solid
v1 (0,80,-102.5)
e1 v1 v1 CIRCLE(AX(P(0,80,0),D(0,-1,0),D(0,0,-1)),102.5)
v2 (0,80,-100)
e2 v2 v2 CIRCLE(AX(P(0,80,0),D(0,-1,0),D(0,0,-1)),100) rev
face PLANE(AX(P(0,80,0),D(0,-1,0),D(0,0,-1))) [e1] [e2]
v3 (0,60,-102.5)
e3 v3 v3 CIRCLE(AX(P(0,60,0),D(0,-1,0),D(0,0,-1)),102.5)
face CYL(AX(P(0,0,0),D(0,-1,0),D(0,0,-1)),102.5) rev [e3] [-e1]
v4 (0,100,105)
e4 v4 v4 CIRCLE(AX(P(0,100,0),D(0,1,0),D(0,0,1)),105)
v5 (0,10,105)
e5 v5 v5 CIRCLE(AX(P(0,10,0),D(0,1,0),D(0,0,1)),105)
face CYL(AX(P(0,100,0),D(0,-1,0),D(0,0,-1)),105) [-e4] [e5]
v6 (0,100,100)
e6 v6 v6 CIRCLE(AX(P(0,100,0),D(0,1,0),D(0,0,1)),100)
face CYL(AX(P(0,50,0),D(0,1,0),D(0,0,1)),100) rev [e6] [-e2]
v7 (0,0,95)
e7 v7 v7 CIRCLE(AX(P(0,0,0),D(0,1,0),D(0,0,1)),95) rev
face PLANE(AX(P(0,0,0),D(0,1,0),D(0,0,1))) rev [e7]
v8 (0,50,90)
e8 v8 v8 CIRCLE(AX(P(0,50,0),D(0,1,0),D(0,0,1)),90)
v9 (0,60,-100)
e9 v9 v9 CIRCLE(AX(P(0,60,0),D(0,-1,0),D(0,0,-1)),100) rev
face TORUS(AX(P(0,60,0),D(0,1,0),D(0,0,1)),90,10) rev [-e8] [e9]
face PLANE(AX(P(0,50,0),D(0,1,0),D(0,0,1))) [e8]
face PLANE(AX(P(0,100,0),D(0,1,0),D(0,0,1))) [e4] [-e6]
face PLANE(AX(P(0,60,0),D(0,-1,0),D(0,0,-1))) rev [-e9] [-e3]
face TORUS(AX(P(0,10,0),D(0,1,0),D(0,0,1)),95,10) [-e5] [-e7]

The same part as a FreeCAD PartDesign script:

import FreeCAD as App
import Part
import Sketcher
Q = App.Units.Quantity


def edges_at(feature, points):
    """Names of the edges that pass closest to the given points."""
    edges = feature.Shape.Edges
    near = lambda p: min(range(len(edges)), key=lambda i: edges[i].distToShape(Part.Vertex(*p))[0])
    return sorted({f"Edge{near(p) + 1}" for p in points})

doc = App.newDocument("Part")
body = doc.addObject("PartDesign::Body", "Body")

sketch1 = body.newObject("Sketcher::SketchObject", "Sketch")
sketch1.AttachmentSupport = (doc.getObject("XZ_Plane"), [""])
sketch1.MapMode = "FlatFace"
sketch1.addGeometry(Part.Circle(App.Vector(0, 0, 0), App.Vector(0, 0, 1), 105), False)
sketch1.addConstraint(Sketcher.Constraint("Coincident", 0, 3, -1, 1))
sketch1.addConstraint(Sketcher.Constraint("Diameter", 0, Q("210 mm")))
pad1 = body.newObject("PartDesign::Pad", "Pad")
pad1.Profile = sketch1
pad1.Length = 100
pad1.Reversed = True

sketch2 = body.newObject("Sketcher::SketchObject", "Sketch001")
sketch2.AttachmentSupport = (doc.getObject("XZ_Plane"), [""])
sketch2.MapMode = "FlatFace"
sketch2.AttachmentOffset = App.Placement(App.Vector(0, 0, -100), App.Rotation())
sketch2.addGeometry(Part.Circle(App.Vector(0, 0, 0), App.Vector(0, 0, 1), 100), False)
sketch2.addConstraint(Sketcher.Constraint("Coincident", 0, 3, -1, 1))
sketch2.addConstraint(Sketcher.Constraint("Diameter", 0, Q("200 mm")))
pocket1 = body.newObject("PartDesign::Pocket", "Pocket")
pocket1.Profile = sketch2
pocket1.Length = 50
pocket1.Reversed = True
doc.recompute()

fillet = body.newObject("PartDesign::Fillet", "Fillet")
fillet.Base = (pocket1, edges_at(pocket1, [(0, 50, -100)]))
fillet.Radius = 10
doc.recompute()

fillet2 = body.newObject("PartDesign::Fillet", "Fillet001")
fillet2.Base = (fillet, edges_at(fillet, [(0, 0, -105)]))
fillet2.Radius = 10

sketch3 = body.newObject("Sketcher::SketchObject", "Sketch002")
sketch3.AttachmentSupport = (doc.getObject("XY_Plane"), [""])
sketch3.MapMode = "FlatFace"
sketch3.addGeometry(Part.LineSegment(App.Vector(0, 80, 0), App.Vector(0, 60, 0)), False)
sketch3.addGeometry(Part.LineSegment(App.Vector(0, 60, 0), App.Vector(102.5, 60, 0)), False)
sketch3.addGeometry(Part.LineSegment(App.Vector(102.5, 60, 0), App.Vector(102.5, 80, 0)), False)
sketch3.addGeometry(Part.LineSegment(App.Vector(102.5, 80, 0), App.Vector(0, 80, 0)), False)
sketch3.addConstraint(Sketcher.Constraint("Coincident", 0, 2, 1, 1))
sketch3.addConstraint(Sketcher.Constraint("Coincident", 1, 2, 2, 1))
sketch3.addConstraint(Sketcher.Constraint("Coincident", 2, 2, 3, 1))
sketch3.addConstraint(Sketcher.Constraint("Coincident", 3, 2, 0, 1))
sketch3.addConstraint(Sketcher.Constraint("Vertical", 0))
sketch3.addConstraint(Sketcher.Constraint("Horizontal", 1))
sketch3.addConstraint(Sketcher.Constraint("Vertical", 2))
sketch3.addConstraint(Sketcher.Constraint("Horizontal", 3))
sketch3.addConstraint(Sketcher.Constraint("PointOnObject", 0, 2, -2))
sketch3.addConstraint(Sketcher.Constraint("DistanceY", 0, 2, 0, 1, Q("20 mm")))
sketch3.addConstraint(Sketcher.Constraint("DistanceX", 1, 1, 1, 2, Q("102.5 mm")))
sketch3.addConstraint(Sketcher.Constraint("DistanceY", -1, 1, 0, 2, Q("60 mm")))
groove = body.newObject("PartDesign::Groove", "Groove")
groove.Profile = sketch3
groove.ReferenceAxis = (sketch3, ["V_Axis"])
groove.Angle = 360

doc.recompute()
